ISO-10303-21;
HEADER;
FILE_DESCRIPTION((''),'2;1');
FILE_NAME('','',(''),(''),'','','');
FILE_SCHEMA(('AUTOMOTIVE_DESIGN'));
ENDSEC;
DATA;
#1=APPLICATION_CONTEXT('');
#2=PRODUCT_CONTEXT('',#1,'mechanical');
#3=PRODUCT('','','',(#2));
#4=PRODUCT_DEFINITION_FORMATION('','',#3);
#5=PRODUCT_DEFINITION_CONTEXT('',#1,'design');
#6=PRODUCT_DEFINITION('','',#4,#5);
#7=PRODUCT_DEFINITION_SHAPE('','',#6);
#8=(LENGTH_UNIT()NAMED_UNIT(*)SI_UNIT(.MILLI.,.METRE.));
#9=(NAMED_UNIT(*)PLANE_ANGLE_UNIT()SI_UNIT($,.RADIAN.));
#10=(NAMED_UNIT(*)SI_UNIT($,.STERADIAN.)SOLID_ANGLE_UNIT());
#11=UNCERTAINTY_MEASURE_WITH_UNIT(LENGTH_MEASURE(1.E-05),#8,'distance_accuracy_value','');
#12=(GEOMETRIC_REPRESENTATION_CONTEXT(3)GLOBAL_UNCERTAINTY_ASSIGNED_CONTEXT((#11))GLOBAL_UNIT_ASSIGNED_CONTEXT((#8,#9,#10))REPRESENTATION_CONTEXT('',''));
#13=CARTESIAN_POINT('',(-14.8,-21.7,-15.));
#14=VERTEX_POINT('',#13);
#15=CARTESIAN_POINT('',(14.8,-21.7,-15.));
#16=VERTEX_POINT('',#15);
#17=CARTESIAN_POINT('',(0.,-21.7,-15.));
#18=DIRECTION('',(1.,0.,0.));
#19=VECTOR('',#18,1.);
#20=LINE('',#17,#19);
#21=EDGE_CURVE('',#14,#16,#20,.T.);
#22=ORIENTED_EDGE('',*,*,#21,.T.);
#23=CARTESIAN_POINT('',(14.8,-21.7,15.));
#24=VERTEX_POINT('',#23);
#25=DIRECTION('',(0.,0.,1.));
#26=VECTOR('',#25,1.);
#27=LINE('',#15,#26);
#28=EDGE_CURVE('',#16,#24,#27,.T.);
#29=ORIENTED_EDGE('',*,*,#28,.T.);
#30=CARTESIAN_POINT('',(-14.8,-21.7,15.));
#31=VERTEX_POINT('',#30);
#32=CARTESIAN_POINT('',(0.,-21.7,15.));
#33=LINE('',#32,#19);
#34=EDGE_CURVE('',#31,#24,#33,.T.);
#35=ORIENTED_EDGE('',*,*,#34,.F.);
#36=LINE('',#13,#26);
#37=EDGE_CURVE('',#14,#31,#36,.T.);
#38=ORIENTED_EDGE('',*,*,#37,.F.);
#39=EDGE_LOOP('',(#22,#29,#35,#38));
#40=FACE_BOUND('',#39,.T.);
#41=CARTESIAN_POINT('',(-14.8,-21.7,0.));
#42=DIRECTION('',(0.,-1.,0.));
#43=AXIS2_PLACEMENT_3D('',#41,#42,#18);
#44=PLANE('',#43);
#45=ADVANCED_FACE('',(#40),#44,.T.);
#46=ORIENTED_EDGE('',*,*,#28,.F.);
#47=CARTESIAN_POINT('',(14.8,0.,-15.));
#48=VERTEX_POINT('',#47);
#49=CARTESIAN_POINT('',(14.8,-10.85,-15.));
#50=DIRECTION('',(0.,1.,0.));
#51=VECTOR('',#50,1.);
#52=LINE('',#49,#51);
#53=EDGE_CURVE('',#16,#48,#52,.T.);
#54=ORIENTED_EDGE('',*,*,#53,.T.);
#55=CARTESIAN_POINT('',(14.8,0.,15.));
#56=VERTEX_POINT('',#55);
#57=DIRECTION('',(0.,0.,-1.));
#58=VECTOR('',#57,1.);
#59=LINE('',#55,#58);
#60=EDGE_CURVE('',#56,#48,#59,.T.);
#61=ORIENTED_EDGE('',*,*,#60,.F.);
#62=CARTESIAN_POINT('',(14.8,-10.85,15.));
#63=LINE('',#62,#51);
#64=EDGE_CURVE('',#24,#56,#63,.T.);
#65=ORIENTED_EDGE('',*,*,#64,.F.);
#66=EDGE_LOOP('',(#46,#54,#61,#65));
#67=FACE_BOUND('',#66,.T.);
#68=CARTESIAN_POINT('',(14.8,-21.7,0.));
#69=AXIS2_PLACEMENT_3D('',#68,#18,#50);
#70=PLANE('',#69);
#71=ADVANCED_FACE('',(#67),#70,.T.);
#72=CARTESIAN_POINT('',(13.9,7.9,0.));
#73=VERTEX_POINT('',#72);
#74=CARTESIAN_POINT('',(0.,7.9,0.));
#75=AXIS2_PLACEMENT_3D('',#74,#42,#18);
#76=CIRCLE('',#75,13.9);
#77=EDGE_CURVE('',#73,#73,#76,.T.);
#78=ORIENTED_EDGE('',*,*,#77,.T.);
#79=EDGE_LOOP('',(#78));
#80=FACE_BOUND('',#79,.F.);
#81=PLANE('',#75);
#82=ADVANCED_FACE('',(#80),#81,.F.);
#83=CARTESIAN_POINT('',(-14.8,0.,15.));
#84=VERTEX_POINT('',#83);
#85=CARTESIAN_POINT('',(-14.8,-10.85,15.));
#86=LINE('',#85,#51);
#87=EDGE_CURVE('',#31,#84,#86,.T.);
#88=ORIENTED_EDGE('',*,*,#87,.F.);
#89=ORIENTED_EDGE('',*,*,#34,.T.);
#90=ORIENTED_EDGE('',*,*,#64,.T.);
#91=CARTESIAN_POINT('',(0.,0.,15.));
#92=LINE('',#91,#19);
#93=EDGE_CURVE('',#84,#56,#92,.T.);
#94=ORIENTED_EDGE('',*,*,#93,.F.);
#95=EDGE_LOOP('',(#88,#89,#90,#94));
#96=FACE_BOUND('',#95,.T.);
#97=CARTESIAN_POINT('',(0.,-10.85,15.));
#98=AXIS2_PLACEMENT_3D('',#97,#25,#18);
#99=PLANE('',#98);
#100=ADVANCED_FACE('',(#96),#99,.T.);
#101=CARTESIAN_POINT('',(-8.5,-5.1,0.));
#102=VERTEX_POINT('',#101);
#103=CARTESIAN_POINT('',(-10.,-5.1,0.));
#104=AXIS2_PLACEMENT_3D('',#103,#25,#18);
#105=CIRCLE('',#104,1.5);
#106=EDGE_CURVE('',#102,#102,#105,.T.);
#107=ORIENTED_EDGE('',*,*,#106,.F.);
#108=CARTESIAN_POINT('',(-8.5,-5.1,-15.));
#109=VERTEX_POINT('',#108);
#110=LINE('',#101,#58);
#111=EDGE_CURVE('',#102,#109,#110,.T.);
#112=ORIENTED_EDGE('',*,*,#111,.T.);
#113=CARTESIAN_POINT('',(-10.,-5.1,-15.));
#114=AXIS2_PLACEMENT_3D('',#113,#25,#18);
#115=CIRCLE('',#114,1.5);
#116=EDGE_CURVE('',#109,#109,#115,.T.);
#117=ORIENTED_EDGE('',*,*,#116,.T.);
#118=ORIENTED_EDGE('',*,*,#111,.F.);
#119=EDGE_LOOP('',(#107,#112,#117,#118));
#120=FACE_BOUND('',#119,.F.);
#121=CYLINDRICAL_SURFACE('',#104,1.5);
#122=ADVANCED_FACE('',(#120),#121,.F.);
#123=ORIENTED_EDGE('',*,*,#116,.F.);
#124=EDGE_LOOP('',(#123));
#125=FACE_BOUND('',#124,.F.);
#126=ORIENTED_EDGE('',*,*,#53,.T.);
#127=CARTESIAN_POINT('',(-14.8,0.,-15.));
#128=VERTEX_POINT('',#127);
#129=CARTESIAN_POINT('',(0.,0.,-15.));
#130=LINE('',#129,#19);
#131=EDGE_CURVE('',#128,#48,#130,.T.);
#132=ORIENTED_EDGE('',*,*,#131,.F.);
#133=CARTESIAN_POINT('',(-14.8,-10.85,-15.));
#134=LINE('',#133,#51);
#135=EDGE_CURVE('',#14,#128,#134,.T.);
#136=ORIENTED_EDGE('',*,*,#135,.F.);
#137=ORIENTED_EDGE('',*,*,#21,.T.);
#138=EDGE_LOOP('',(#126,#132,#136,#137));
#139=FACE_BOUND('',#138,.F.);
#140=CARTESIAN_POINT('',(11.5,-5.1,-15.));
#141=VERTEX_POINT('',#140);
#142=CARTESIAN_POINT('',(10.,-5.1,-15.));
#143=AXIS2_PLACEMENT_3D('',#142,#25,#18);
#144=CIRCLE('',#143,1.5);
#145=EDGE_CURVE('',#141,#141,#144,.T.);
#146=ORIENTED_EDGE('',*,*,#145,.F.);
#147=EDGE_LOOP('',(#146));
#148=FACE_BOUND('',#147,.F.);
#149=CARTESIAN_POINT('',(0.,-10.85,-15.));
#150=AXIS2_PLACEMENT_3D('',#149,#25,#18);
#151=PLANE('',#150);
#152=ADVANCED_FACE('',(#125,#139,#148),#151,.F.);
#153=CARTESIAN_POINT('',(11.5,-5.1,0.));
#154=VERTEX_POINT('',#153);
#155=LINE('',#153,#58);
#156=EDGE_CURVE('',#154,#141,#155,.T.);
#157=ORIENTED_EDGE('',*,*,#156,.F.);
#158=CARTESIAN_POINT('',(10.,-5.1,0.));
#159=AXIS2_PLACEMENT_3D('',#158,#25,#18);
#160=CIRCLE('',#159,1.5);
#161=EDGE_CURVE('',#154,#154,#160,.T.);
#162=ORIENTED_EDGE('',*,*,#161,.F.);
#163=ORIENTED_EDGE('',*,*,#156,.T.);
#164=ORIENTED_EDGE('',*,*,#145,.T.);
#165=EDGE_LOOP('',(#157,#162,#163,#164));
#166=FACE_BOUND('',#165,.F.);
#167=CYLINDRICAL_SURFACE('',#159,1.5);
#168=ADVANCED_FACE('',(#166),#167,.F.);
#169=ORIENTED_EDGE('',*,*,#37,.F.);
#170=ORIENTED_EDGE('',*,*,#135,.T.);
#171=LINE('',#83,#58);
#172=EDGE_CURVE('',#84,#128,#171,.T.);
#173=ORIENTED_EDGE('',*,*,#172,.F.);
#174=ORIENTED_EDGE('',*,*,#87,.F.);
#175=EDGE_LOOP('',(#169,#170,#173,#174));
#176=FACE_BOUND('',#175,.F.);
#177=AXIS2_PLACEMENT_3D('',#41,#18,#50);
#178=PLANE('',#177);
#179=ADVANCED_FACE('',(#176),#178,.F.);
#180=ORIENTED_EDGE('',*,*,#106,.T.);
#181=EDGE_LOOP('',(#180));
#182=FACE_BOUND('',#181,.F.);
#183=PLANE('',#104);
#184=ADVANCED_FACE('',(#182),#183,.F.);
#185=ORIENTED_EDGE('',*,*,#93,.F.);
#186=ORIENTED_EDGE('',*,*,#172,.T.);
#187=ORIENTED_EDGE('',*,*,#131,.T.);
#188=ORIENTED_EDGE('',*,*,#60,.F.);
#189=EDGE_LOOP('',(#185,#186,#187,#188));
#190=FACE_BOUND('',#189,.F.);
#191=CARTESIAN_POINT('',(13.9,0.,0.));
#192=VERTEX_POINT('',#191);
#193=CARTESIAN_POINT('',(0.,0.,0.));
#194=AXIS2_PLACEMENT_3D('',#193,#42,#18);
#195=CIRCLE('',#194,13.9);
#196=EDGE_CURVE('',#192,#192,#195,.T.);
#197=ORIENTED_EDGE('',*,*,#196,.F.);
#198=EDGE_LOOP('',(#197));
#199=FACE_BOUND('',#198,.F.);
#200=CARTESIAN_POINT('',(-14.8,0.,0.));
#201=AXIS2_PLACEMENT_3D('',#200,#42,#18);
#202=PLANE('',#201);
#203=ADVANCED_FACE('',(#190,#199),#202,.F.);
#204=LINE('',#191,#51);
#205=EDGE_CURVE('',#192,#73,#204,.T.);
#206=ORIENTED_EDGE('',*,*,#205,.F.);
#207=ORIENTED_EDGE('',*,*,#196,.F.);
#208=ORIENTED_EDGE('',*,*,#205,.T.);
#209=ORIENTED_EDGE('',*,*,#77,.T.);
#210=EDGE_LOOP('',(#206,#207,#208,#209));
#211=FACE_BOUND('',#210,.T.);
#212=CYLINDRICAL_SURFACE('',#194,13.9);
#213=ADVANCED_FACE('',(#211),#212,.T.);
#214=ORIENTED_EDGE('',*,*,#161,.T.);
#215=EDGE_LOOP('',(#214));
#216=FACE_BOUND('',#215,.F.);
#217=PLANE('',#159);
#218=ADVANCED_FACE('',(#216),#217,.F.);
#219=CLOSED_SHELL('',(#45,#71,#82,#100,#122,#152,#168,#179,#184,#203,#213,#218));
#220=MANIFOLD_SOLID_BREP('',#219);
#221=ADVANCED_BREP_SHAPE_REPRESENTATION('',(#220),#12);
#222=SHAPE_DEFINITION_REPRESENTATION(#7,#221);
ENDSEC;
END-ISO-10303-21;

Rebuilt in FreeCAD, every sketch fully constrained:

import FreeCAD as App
import Part
import Sketcher

V = App.Vector
Q = App.Units.Quantity

doc = App.newDocument("Part")
body = doc.addObject("PartDesign::Body", "Body")

sketch1 = body.newObject("Sketcher::SketchObject", "Sketch")
sketch1.AttachmentSupport = (doc.getObject("XY_Plane"), [""])
sketch1.MapMode = "FlatFace"
sketch1.addGeometry([
    Part.LineSegment(V(-15, 0, 0), V(-15, -22, 0)),
    Part.LineSegment(V(-15, -22, 0), V(15, -22, 0)),
    Part.LineSegment(V(15, -22, 0), V(15, 0, 0)),
    Part.LineSegment(V(15, 0, 0), V(-15, 0, 0)),
], False)
sketch1.addConstraint([
    Sketcher.Constraint("Coincident", 0, 2, 1, 1),
    Sketcher.Constraint("Coincident", 1, 2, 2, 1),
    Sketcher.Constraint("Coincident", 2, 2, 3, 1),
    Sketcher.Constraint("Coincident", 3, 2, 0, 1),
    Sketcher.Constraint("Vertical", 0),
    Sketcher.Constraint("Horizontal", 1),
    Sketcher.Constraint("Vertical", 2),
    Sketcher.Constraint("Horizontal", 3),
    Sketcher.Constraint("Symmetric", 2, 2, 3, 2, -1, 1),
    Sketcher.Constraint("DistanceX", 1, 1, 1, 2, Q("29.6 mm")),
    Sketcher.Constraint("DistanceY", 0, 2, 0, 1, Q("21.7 mm")),
])
pad1 = body.newObject("PartDesign::Pad", "Pad")
pad1.Profile = sketch1
pad1.Length = 30
pad1.Midplane = True

sketch2 = body.newObject("Sketcher::SketchObject", "Sketch001")
sketch2.AttachmentSupport = (doc.getObject("XZ_Plane"), [""])
sketch2.MapMode = "FlatFace"
sketch2.addGeometry(Part.Circle(V(0, 0, 0), V(0, 0, 1), 14), False)
sketch2.addConstraint([
    Sketcher.Constraint("Coincident", 0, 3, -1, 1),
    Sketcher.Constraint("Diameter", 0, Q("27.8 mm")),
])
pad2 = body.newObject("PartDesign::Pad", "Pad001")
pad2.Profile = sketch2
pad2.Length = 7.9
pad2.Reversed = True

sketch3 = body.newObject("Sketcher::SketchObject", "Sketch002")
sketch3.AttachmentSupport = (doc.getObject("XY_Plane"), [""])
sketch3.MapMode = "FlatFace"
sketch3.addGeometry([
    Part.Circle(V(-10, -5.1, 0), V(0, 0, 1), 1.5),
    Part.Circle(V(10, -5.1, 0), V(0, 0, 1), 1.5),
], False)
sketch3.addConstraint([
    Sketcher.Constraint("Equal", 0, 1),
    Sketcher.Constraint("Symmetric", 0, 3, 1, 3, -2),
    Sketcher.Constraint("Diameter", 0, Q("3 mm")),
    Sketcher.Constraint("DistanceX", 0, 3, -1, 1, Q("10 mm")),
    Sketcher.Constraint("DistanceY", 0, 3, -1, 1, Q("5.1 mm")),
])
pocket1 = body.newObject("PartDesign::Pocket", "Pocket")
pocket1.Profile = sketch3
pocket1.Type = "ThroughAll"

doc.recompute()
